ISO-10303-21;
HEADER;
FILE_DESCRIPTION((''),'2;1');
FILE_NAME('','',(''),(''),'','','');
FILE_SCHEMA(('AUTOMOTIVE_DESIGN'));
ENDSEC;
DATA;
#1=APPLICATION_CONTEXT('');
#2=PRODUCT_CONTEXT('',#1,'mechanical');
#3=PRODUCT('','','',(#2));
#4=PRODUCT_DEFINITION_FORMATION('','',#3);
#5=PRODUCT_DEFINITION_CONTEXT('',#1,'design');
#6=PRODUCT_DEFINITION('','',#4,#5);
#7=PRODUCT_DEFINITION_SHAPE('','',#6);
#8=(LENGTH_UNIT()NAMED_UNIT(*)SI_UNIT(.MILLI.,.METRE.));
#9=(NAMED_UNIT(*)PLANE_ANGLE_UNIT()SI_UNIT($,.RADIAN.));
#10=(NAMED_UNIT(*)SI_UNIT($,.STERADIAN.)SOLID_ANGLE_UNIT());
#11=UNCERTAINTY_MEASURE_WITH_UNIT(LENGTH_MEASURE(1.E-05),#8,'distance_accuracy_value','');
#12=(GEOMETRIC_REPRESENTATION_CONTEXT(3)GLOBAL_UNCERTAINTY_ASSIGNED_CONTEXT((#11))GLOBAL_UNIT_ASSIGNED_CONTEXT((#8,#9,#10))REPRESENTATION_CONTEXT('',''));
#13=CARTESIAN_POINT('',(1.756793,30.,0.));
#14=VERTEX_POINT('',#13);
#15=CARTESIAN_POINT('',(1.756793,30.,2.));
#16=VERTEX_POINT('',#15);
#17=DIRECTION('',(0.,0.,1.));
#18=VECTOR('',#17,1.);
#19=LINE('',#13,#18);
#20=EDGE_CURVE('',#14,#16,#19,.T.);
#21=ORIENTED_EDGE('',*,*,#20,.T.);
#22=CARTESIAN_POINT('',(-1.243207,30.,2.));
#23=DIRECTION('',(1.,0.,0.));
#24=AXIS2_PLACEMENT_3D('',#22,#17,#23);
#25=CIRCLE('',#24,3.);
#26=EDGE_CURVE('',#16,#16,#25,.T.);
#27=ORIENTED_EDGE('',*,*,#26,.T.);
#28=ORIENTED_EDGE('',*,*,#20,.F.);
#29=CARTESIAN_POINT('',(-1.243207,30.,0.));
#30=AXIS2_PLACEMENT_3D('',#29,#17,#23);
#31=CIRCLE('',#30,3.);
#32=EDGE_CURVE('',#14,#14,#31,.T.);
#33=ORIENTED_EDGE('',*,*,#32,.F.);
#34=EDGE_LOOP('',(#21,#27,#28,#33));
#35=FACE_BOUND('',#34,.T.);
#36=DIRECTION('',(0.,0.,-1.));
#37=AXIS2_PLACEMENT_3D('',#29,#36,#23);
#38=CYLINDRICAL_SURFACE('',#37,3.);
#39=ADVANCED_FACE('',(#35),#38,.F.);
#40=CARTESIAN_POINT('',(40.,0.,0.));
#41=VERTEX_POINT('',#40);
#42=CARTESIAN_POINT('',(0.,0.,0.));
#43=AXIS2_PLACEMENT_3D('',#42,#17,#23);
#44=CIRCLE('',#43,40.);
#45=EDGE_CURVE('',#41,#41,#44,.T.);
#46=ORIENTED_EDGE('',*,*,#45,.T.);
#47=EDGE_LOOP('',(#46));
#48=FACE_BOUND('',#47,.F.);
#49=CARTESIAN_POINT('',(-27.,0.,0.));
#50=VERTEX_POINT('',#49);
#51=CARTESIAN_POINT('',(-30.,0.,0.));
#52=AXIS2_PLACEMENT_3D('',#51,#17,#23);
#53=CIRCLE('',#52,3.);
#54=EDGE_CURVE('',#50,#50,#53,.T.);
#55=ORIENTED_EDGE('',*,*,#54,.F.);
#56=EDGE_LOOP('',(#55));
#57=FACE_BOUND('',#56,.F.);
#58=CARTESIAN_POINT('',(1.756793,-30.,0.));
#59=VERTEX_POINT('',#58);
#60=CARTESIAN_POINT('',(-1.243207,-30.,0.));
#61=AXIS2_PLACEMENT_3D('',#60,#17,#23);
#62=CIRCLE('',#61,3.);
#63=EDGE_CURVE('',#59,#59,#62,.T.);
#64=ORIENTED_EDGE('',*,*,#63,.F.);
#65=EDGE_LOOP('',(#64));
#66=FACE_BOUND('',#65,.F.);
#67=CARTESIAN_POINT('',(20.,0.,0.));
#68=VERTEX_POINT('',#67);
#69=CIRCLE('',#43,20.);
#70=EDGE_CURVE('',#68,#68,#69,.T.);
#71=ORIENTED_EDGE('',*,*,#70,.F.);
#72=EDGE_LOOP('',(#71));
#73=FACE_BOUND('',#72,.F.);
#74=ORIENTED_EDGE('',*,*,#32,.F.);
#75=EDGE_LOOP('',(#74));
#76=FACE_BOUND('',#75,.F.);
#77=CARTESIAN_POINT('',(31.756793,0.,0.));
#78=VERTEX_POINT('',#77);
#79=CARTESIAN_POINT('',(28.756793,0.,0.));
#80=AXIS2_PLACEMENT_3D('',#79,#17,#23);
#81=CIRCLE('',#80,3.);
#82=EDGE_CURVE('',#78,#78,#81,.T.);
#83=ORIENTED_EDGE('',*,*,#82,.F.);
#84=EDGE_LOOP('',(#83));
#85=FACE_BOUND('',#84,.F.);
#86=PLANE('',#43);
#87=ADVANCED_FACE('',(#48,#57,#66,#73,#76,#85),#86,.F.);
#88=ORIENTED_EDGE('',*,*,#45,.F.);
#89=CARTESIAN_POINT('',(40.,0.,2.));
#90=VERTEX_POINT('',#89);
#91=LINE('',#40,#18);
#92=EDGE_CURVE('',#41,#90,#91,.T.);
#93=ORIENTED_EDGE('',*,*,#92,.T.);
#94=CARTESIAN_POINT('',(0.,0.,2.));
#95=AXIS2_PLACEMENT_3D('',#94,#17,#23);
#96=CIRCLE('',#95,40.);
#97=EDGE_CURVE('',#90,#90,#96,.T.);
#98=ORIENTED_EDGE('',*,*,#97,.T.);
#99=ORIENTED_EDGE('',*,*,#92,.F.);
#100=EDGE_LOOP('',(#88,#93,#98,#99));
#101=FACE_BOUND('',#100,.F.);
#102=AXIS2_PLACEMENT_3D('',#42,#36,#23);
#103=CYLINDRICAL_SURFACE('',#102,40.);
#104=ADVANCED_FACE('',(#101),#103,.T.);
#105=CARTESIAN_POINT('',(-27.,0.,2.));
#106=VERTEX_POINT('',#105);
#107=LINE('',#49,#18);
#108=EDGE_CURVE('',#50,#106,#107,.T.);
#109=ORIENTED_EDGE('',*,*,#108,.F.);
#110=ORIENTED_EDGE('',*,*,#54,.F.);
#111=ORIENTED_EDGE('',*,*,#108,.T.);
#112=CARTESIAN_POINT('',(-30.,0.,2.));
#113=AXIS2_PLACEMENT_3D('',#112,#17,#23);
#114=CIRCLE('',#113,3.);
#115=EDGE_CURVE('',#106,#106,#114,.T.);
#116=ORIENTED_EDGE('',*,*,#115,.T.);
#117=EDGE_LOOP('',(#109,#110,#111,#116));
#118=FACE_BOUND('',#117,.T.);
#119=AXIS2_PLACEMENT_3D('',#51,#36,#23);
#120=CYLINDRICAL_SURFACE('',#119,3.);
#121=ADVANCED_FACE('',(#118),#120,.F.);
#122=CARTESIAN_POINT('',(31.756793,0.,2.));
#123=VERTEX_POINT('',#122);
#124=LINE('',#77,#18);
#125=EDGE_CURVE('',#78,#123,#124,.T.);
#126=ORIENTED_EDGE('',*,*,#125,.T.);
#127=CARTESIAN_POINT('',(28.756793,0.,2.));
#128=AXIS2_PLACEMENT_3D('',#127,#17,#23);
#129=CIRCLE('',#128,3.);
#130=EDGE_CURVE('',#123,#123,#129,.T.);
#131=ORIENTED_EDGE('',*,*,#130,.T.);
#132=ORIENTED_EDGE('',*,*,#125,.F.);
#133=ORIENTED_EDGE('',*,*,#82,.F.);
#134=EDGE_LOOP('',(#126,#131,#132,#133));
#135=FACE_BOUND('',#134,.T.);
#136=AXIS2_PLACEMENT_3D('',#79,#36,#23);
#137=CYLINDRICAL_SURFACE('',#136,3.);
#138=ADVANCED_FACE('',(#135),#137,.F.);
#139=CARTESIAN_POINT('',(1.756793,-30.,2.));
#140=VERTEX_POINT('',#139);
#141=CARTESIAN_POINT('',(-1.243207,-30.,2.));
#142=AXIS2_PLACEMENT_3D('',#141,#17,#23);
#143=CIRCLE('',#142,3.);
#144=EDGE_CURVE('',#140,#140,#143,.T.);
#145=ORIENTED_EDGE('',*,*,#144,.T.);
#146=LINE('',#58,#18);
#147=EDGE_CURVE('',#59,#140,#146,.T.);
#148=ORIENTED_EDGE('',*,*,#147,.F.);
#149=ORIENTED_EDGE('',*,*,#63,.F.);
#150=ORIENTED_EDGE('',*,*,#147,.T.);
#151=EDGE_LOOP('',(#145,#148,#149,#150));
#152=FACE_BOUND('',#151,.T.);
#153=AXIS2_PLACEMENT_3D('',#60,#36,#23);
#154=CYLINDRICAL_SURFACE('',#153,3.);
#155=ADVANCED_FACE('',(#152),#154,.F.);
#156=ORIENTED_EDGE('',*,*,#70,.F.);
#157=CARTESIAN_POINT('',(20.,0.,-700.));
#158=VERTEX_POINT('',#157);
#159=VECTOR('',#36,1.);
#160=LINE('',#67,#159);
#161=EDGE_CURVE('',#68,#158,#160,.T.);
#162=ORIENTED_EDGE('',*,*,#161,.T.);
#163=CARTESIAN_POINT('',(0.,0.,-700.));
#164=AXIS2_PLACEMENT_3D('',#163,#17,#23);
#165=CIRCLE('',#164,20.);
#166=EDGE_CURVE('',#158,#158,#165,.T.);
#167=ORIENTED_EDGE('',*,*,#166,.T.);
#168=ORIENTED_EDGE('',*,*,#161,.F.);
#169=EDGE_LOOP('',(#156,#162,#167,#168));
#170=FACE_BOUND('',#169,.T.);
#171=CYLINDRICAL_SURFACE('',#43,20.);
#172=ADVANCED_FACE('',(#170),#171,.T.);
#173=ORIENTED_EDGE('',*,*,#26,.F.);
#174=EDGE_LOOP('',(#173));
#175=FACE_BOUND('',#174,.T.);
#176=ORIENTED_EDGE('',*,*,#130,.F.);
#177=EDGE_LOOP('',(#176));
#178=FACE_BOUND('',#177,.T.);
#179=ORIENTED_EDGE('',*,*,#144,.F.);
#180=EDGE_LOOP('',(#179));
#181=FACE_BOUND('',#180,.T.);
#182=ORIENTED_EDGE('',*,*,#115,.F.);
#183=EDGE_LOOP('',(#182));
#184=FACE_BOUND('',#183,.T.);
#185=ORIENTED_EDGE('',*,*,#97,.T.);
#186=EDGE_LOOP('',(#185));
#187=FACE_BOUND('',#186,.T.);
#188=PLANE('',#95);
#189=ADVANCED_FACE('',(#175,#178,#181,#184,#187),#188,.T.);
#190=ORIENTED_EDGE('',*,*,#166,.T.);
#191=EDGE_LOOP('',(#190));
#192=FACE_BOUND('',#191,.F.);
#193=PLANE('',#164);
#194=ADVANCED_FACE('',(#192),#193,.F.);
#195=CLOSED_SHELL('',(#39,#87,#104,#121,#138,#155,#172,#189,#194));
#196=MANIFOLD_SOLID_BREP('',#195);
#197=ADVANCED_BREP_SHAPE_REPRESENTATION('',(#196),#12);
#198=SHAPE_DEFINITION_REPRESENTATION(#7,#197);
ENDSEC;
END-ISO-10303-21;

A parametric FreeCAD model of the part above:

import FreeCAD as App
import Part
import Sketcher

V = App.Vector

doc = App.newDocument("Part")
body = doc.addObject("PartDesign::Body", "Body")

# Sketch on XY plane
sketch1 = doc.addObject("Sketcher::SketchObject", "Sketch")
body.addObject(sketch1)
sketch1.AttachmentSupport = (doc.XY_Plane, [""])
sketch1.MapMode = "FlatFace"
sketch1.addGeometry(Part.Circle(V(0, 0, 0), V(0, 0, 1), 20), False)
sketch1.addConstraint(Sketcher.Constraint("Coincident", 0, 3, -1, 1))
sketch1.addConstraint(Sketcher.Constraint("Diameter", 0, 40.0))
pad1 = doc.addObject("PartDesign::Pad", "Pad")
body.addObject(pad1)
pad1.Profile = sketch1
pad1.Length = 700
pad1.Reversed = True

# Sketch on XY plane
sketch2 = doc.addObject("Sketcher::SketchObject", "Sketch001")
body.addObject(sketch2)
sketch2.AttachmentSupport = (doc.XY_Plane, [""])
sketch2.MapMode = "FlatFace"
sketch2.addGeometry(Part.Circle(V(0, 0, 0), V(0, 0, 1), 40), False)
sketch2.addGeometry(Part.Circle(V(-1.2, -30, 0), V(0, 0, 1), 3), False)
sketch2.addGeometry(Part.Circle(V(-30, 0, 0), V(0, 0, 1), 3), False)
sketch2.addGeometry(Part.Circle(V(-1.2, 30, 0), V(0, 0, 1), 3), False)
sketch2.addGeometry(Part.Circle(V(28.8, 0, 0), V(0, 0, 1), 3), False)
sketch2.addConstraint(Sketcher.Constraint("Coincident", 0, 3, -1, 1))
sketch2.addConstraint(Sketcher.Constraint("Equal", 1, 2))
sketch2.addConstraint(Sketcher.Constraint("Equal", 2, 3))
sketch2.addConstraint(Sketcher.Constraint("Equal", 3, 4))
sketch2.addConstraint(Sketcher.Constraint("Symmetric", 1, 3, 3, 3, -1))
sketch2.addConstraint(Sketcher.Constraint("PointOnObject", 2, 3, -1))
sketch2.addConstraint(Sketcher.Constraint("PointOnObject", 4, 3, -1))
sketch2.addConstraint(Sketcher.Constraint("Diameter", 0, 80.0))
sketch2.addConstraint(Sketcher.Constraint("Diameter", 1, 6.0))
sketch2.addConstraint(Sketcher.Constraint("DistanceY", 1, 3, -1, 1, 30.0))
sketch2.addConstraint(Sketcher.Constraint("DistanceX", 2, 3, -1, 1, 30.0))
sketch2.addConstraint(Sketcher.Constraint("DistanceX", 1, 3, 4, 3, 30.0))
sketch2.addConstraint(Sketcher.Constraint("DistanceX", 1, 3, -1, 1, 1.243207))
pad2 = doc.addObject("PartDesign::Pad", "Pad001")
body.addObject(pad2)
pad2.Profile = sketch2
pad2.Length = 2

doc.recompute()
